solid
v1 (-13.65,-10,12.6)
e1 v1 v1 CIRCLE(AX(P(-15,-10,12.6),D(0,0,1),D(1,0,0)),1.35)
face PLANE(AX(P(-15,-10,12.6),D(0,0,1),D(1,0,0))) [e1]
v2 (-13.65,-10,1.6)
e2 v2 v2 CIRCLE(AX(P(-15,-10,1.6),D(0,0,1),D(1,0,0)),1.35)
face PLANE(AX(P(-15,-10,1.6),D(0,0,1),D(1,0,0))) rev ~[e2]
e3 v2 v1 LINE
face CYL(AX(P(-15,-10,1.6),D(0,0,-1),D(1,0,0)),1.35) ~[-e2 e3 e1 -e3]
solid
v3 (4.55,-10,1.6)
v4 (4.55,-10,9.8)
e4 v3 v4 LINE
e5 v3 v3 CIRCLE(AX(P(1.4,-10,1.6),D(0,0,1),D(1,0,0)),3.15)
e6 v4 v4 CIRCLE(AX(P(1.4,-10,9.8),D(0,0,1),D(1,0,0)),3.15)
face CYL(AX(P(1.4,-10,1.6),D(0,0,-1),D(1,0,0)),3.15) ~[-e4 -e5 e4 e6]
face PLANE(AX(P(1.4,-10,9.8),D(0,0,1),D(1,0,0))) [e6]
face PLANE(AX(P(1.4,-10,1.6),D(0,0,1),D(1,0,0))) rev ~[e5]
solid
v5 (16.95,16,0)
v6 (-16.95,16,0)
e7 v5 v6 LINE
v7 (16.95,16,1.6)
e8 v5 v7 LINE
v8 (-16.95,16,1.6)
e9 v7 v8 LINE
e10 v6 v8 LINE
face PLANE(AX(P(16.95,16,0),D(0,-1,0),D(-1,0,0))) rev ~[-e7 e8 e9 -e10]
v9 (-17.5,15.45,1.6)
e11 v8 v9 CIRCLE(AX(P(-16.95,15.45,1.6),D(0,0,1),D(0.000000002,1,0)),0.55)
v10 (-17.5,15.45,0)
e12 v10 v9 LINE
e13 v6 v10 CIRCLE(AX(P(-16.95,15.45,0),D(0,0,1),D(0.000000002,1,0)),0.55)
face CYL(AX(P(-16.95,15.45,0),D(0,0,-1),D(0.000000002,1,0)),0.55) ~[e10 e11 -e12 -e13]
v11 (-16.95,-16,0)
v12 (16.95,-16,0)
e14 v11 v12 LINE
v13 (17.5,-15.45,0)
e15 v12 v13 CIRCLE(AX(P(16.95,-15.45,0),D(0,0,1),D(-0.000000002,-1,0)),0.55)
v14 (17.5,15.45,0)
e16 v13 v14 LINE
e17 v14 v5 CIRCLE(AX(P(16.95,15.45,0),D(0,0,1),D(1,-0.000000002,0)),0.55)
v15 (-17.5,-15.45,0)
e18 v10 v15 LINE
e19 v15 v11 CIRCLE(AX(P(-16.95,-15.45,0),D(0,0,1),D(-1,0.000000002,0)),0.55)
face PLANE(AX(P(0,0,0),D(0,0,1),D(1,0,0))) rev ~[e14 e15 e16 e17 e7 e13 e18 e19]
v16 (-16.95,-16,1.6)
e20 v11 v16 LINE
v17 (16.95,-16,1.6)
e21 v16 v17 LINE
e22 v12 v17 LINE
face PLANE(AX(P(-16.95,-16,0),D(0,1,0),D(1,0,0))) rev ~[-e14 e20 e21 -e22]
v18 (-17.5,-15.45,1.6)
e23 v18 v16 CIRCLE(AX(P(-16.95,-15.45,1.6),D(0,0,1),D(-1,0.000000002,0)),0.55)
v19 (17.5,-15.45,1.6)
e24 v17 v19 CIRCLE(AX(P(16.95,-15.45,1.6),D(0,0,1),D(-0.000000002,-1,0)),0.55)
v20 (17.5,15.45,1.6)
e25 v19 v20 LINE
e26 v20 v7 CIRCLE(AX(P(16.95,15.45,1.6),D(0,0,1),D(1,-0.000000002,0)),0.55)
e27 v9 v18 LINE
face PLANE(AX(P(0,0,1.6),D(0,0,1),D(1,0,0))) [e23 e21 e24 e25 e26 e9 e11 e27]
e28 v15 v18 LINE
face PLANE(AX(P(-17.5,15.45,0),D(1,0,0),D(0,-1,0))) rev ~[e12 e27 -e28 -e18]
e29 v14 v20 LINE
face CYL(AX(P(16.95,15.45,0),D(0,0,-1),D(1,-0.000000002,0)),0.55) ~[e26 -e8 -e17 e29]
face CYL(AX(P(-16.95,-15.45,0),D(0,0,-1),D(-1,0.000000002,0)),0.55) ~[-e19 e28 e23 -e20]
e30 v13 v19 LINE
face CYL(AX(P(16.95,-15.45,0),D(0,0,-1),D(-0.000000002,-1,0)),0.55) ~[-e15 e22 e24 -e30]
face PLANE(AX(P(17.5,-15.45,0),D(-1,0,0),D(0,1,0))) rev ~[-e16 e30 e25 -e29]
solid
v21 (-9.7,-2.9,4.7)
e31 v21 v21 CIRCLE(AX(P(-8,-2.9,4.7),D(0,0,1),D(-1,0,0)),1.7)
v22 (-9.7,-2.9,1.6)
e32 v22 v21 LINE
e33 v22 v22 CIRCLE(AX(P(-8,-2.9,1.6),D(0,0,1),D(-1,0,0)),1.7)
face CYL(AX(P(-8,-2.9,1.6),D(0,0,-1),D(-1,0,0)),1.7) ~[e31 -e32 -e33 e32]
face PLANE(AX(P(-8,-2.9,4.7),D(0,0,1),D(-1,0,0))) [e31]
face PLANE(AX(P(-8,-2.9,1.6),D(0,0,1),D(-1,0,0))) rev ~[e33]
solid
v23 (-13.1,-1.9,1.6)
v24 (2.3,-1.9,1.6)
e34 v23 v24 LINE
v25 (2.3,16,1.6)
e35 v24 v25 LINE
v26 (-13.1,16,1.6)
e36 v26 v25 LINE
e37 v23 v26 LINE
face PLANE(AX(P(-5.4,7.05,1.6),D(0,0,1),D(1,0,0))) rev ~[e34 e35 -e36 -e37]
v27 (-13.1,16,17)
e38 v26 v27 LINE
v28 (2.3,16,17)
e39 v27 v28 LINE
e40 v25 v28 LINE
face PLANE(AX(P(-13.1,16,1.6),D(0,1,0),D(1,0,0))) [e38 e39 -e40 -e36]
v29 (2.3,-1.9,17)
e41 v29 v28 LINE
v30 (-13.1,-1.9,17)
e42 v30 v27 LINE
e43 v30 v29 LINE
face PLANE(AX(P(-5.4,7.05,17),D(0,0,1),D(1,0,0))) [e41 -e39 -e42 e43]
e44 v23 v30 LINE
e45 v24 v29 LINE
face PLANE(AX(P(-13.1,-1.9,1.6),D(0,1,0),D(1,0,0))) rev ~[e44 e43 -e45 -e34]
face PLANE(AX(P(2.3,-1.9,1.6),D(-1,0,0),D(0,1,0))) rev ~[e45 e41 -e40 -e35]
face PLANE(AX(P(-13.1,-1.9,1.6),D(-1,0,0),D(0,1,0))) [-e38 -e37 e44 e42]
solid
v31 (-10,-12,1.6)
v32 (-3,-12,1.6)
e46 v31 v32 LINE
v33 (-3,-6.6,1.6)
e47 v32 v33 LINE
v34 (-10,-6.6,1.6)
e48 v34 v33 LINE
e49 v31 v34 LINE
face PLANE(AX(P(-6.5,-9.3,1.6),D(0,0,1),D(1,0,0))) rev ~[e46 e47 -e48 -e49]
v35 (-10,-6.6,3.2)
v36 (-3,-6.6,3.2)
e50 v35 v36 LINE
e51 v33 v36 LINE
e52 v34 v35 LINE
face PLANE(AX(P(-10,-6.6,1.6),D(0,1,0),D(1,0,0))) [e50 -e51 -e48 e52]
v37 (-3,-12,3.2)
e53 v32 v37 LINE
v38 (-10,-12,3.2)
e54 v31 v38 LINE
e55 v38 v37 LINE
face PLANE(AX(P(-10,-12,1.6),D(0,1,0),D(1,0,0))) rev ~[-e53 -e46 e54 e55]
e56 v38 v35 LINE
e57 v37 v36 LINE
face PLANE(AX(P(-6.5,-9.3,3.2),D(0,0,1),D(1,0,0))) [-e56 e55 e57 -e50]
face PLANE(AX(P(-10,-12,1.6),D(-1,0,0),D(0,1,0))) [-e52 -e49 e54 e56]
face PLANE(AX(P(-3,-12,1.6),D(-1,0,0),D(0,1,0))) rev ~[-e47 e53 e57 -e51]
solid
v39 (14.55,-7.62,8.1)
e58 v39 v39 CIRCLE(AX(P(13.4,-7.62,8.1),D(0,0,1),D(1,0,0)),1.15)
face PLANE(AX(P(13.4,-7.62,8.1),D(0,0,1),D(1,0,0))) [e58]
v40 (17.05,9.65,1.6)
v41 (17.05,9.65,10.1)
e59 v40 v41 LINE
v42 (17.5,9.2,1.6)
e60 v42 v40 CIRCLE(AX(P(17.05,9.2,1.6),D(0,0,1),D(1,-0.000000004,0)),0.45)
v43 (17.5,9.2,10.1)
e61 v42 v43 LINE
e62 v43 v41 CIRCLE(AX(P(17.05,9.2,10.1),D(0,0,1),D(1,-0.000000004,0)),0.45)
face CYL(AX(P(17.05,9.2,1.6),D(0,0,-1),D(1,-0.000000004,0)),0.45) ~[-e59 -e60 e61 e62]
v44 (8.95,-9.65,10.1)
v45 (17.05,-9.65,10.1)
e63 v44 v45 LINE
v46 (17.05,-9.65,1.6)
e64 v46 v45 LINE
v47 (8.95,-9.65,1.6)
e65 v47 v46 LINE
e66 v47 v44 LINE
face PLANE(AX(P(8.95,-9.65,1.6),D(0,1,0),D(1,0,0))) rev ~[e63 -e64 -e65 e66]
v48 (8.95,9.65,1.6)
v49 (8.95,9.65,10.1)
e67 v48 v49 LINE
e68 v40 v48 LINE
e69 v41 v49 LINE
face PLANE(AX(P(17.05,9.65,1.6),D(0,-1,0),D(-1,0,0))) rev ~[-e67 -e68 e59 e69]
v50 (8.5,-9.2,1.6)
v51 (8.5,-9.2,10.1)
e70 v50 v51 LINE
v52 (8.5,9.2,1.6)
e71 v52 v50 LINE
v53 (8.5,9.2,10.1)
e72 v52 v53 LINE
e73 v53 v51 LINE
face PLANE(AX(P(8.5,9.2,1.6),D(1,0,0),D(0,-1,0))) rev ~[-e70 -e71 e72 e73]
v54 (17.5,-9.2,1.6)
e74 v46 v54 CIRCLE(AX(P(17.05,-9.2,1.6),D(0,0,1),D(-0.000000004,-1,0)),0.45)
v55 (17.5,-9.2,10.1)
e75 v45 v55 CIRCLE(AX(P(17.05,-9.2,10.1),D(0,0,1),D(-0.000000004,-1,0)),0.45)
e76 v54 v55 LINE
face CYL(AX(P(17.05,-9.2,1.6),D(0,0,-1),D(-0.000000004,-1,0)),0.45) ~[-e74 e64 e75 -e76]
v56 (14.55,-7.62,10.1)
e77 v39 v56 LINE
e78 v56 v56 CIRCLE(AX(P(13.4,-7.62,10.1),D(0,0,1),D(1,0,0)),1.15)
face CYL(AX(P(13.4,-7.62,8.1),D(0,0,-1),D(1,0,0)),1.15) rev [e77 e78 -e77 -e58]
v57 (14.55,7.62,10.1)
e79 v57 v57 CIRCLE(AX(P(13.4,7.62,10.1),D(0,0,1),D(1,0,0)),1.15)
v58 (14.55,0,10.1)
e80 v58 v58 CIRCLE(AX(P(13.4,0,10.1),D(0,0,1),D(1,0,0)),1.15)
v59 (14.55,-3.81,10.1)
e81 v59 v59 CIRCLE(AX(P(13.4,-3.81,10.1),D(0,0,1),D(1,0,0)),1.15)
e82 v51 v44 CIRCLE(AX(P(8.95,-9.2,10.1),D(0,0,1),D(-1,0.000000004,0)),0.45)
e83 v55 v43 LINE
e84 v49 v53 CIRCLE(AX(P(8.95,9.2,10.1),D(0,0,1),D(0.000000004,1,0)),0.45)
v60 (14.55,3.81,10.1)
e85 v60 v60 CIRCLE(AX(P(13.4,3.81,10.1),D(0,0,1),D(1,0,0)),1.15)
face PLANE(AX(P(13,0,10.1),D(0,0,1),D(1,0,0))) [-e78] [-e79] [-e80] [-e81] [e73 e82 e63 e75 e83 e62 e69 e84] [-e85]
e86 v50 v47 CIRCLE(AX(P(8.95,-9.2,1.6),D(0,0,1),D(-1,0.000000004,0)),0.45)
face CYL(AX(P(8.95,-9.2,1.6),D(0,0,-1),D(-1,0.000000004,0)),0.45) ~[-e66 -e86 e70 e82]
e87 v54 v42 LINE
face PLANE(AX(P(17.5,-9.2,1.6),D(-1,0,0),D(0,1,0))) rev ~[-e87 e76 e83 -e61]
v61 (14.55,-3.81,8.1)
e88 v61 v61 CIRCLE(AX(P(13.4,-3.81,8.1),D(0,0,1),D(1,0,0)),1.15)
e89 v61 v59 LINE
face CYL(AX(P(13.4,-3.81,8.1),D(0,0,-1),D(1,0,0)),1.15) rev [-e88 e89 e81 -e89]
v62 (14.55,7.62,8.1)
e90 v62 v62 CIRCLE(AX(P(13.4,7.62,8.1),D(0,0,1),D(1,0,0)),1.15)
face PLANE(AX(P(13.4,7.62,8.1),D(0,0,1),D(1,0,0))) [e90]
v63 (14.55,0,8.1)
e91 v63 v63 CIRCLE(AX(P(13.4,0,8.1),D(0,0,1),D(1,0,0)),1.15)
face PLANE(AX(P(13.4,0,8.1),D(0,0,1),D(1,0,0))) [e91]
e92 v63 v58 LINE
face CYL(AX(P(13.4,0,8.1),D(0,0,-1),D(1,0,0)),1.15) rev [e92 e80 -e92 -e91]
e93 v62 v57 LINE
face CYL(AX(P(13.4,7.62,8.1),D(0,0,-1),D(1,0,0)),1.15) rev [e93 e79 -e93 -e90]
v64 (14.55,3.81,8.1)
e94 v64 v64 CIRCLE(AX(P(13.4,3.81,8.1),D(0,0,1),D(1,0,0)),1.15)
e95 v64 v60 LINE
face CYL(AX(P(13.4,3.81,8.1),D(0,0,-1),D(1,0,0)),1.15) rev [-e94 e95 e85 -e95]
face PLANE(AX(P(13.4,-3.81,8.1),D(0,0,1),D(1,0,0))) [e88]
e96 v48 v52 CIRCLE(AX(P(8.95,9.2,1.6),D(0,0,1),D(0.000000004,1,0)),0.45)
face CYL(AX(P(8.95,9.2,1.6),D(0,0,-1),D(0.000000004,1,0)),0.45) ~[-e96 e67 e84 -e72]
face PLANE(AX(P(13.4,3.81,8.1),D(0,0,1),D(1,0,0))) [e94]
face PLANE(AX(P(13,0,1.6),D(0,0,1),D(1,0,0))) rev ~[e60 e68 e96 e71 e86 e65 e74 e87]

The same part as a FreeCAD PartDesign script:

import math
import FreeCAD as App
import Part
import Sketcher

V = App.Vector

doc = App.newDocument("Part")
body = doc.addObject("PartDesign::Body", "Body")

# Sketch on XY plane
sketch1 = body.newObject("Sketcher::SketchObject", "Sketch")
sketch1.AttachmentSupport = (doc.getObject("XY_Plane"), [""])
sketch1.MapMode = "FlatFace"
sketch1.addGeometry([
    Part.LineSegment(V(-16.9, -16, 0), V(16.9, -16, 0)),  # 0
    Part.ArcOfCircle(Part.Circle(V(17, -15.5, 0), V(0, 0, 1), 0.5), math.radians(-90), math.radians(0)),  # 1
    Part.LineSegment(V(17.5, -15.4, 0), V(17.5, 15.4, 0)),  # 2
    Part.ArcOfCircle(Part.Circle(V(17, 15.5, 0), V(0, 0, 1), 0.5), math.radians(0), math.radians(90)),  # 3
    Part.LineSegment(V(16.9, 16, 0), V(-16.9, 16, 0)),  # 4
    Part.ArcOfCircle(Part.Circle(V(-17, 15.5, 0), V(0, 0, 1), 0.5), math.radians(90), math.radians(180)),  # 5
    Part.LineSegment(V(-17.5, 15.4, 0), V(-17.5, -15.4, 0)),  # 6
    Part.ArcOfCircle(Part.Circle(V(-17, -15.5, 0), V(0, 0, 1), 0.5), math.radians(180), math.radians(270)),  # 7
], False)
sketch1.addConstraint([
    Sketcher.Constraint("Tangent", 0, 2, 1, 1),
    Sketcher.Constraint("Tangent", 1, 2, 2, 1),
    Sketcher.Constraint("Tangent", 2, 2, 3, 1),
    Sketcher.Constraint("Tangent", 3, 2, 4, 1),
    Sketcher.Constraint("Tangent", 4, 2, 5, 1),
    Sketcher.Constraint("Tangent", 5, 2, 6, 1),
    Sketcher.Constraint("Tangent", 6, 2, 7, 1),
    Sketcher.Constraint("Tangent", 7, 2, 0, 1),
    Sketcher.Constraint("Horizontal", 0),
    Sketcher.Constraint("Vertical", 2),
    Sketcher.Constraint("Horizontal", 4),
    Sketcher.Constraint("Vertical", 6),
    Sketcher.Constraint("Equal", 1, 3),
    Sketcher.Constraint("Equal", 3, 5),
    Sketcher.Constraint("Equal", 5, 7),
    Sketcher.Constraint("Symmetric", 1, 3, 5, 3, -1, 1),
    Sketcher.Constraint("Radius", 1, 0.55),
    Sketcher.Constraint("DistanceX", 0, 1, 0, 2, 33.9),
    Sketcher.Constraint("DistanceY", 2, 1, 2, 2, 30.9),
])
pad1 = body.newObject("PartDesign::Pad", "Pad")
pad1.Profile = sketch1
pad1.Length = 1.6
body2 = doc.addObject("PartDesign::Body", "Body001")

# Sketch on XY plane
sketch2 = body2.newObject("Sketcher::SketchObject", "Sketch001")
sketch2.AttachmentSupport = (doc.getObject("XY_Plane001"), [""])
sketch2.MapMode = "FlatFace"
sketch2.AttachmentOffset = App.Placement(V(0, 0, 1.6), App.Rotation())
sketch2.addGeometry([
    Part.LineSegment(V(-13, 16, 0), V(-13, -2, 0)),
    Part.LineSegment(V(-13, -2, 0), V(2, -2, 0)),
    Part.LineSegment(V(2, -2, 0), V(2, 16, 0)),
    Part.LineSegment(V(2, 16, 0), V(-13, 16, 0)),
], False)
sketch2.addConstraint([
    Sketcher.Constraint("Coincident", 0, 2, 1, 1),
    Sketcher.Constraint("Coincident", 1, 2, 2, 1),
    Sketcher.Constraint("Coincident", 2, 2, 3, 1),
    Sketcher.Constraint("Coincident", 3, 2, 0, 1),
    Sketcher.Constraint("Vertical", 0),
    Sketcher.Constraint("Horizontal", 1),
    Sketcher.Constraint("Vertical", 2),
    Sketcher.Constraint("Horizontal", 3),
    Sketcher.Constraint("DistanceX", 1, 1, 1, 2, 15.4),
    Sketcher.Constraint("DistanceY", 0, 2, 0, 1, 17.9),
    Sketcher.Constraint("DistanceY", -1, 1, 2, 2, 16.0),
    Sketcher.Constraint("DistanceX", 0, 2, -1, 1, 13.1),
])
pad2 = body2.newObject("PartDesign::Pad", "Pad001")
pad2.Profile = sketch2
pad2.Length = 15.4
body3 = doc.addObject("PartDesign::Body", "Body002")

# Sketch on XY plane
sketch3 = body3.newObject("Sketcher::SketchObject", "Sketch002")
sketch3.AttachmentSupport = (doc.getObject("XY_Plane002"), [""])
sketch3.MapMode = "FlatFace"
sketch3.AttachmentOffset = App.Placement(V(0, 0, 1.6), App.Rotation())
sketch3.addGeometry([
    Part.LineSegment(V(8.95, -9.65, 0), V(17.05, -9.65, 0)),  # 0
    Part.ArcOfCircle(Part.Circle(V(17.05, -9.2, 0), V(0, 0, 1), 0.45), math.radians(-90), math.radians(0)),  # 1
    Part.LineSegment(V(17.5, -9.2, 0), V(17.5, 9.2, 0)),  # 2
    Part.ArcOfCircle(Part.Circle(V(17.05, 9.2, 0), V(0, 0, 1), 0.45), math.radians(0), math.radians(90)),  # 3
    Part.LineSegment(V(17.05, 9.65, 0), V(8.95, 9.65, 0)),  # 4
    Part.ArcOfCircle(Part.Circle(V(8.95, 9.2, 0), V(0, 0, 1), 0.45), math.radians(90), math.radians(180)),  # 5
    Part.LineSegment(V(8.5, 9.2, 0), V(8.5, -9.2, 0)),  # 6
    Part.ArcOfCircle(Part.Circle(V(8.95, -9.2, 0), V(0, 0, 1), 0.45), math.radians(180), math.radians(270)),  # 7
], False)
sketch3.addConstraint([
    Sketcher.Constraint("Tangent", 0, 2, 1, 1),
    Sketcher.Constraint("Tangent", 1, 2, 2, 1),
    Sketcher.Constraint("Tangent", 2, 2, 3, 1),
    Sketcher.Constraint("Tangent", 3, 2, 4, 1),
    Sketcher.Constraint("Tangent", 4, 2, 5, 1),
    Sketcher.Constraint("Tangent", 5, 2, 6, 1),
    Sketcher.Constraint("Tangent", 6, 2, 7, 1),
    Sketcher.Constraint("Tangent", 7, 2, 0, 1),
    Sketcher.Constraint("Horizontal", 0),
    Sketcher.Constraint("Vertical", 2),
    Sketcher.Constraint("Horizontal", 4),
    Sketcher.Constraint("Vertical", 6),
    Sketcher.Constraint("Equal", 1, 3),
    Sketcher.Constraint("Equal", 3, 5),
    Sketcher.Constraint("Equal", 5, 7),
    Sketcher.Constraint("Radius", 1, 0.45),
    Sketcher.Constraint("DistanceX", 0, 1, 0, 2, 8.1),
    Sketcher.Constraint("DistanceY", 2, 1, 2, 2, 18.4),
    Sketcher.Constraint("DistanceY", 1, 3, -1, 1, 9.2),
    Sketcher.Constraint("DistanceX", -1, 1, 1, 2, 17.5),
])
pad3 = body3.newObject("PartDesign::Pad", "Pad002")
pad3.Profile = sketch3
pad3.Length = 8.5

# Sketch on XY plane
sketch4 = body3.newObject("Sketcher::SketchObject", "Sketch003")
sketch4.AttachmentSupport = (doc.getObject("XY_Plane002"), [""])
sketch4.MapMode = "FlatFace"
sketch4.AttachmentOffset = App.Placement(V(0, 0, 8.1), App.Rotation())
sketch4.addGeometry([
    Part.Circle(V(13.4, -7.6, 0), V(0, 0, 1), 1.1),  # 0
    Part.Circle(V(13.4, -3.8, 0), V(0, 0, 1), 1.1),  # 1
    Part.Circle(V(13.4, 0, 0), V(0, 0, 1), 1.1),  # 2
    Part.Circle(V(13.4, 3.8, 0), V(0, 0, 1), 1.1),  # 3
    Part.Circle(V(13.4, 7.6, 0), V(0, 0, 1), 1.1),  # 4
], False)
sketch4.addConstraint([
    Sketcher.Constraint("Equal", 0, 1),
    Sketcher.Constraint("Equal", 1, 2),
    Sketcher.Constraint("Equal", 2, 3),
    Sketcher.Constraint("Equal", 3, 4),
    Sketcher.Constraint("Symmetric", 1, 3, 3, 3, -1),
    Sketcher.Constraint("Symmetric", 0, 3, 4, 3, -1),
    Sketcher.Constraint("PointOnObject", 2, 3, -1),
    Sketcher.Constraint("Vertical", 0, 3, 1, 3),
    Sketcher.Constraint("Vertical", 1, 3, 2, 3),
    Sketcher.Constraint("Diameter", 0, 2.3),
    Sketcher.Constraint("DistanceX", -1, 1, 0, 3, 13.4),
    Sketcher.Constraint("DistanceY", 0, 3, -1, 1, 7.62),
    Sketcher.Constraint("DistanceY", 1, 3, -1, 1, 3.81),
])
pocket1 = body3.newObject("PartDesign::Pocket", "Pocket")
pocket1.Profile = sketch4
pocket1.Length = 2
pocket1.Reversed = True
body4 = doc.addObject("PartDesign::Body", "Body003")

# Sketch on XY plane
sketch5 = body4.newObject("Sketcher::SketchObject", "Sketch004")
sketch5.AttachmentSupport = (doc.getObject("XY_Plane003"), [""])
sketch5.MapMode = "FlatFace"
sketch5.AttachmentOffset = App.Placement(V(0, 0, 1.6), App.Rotation())
sketch5.addGeometry(Part.Circle(V(1.4, -10, 0), V(0, 0, 1), 3.1), False)
sketch5.addConstraint([
    Sketcher.Constraint("Diameter", 0, 6.3),
    Sketcher.Constraint("DistanceY", 0, 3, -1, 1, 10.0),
    Sketcher.Constraint("DistanceX", -1, 1, 0, 3, 1.4),
])
pad4 = body4.newObject("PartDesign::Pad", "Pad003")
pad4.Profile = sketch5
pad4.Length = 8.2
body5 = doc.addObject("PartDesign::Body", "Body004")

# Sketch on XY plane
sketch6 = body5.newObject("Sketcher::SketchObject", "Sketch005")
sketch6.AttachmentSupport = (doc.getObject("XY_Plane004"), [""])
sketch6.MapMode = "FlatFace"
sketch6.AttachmentOffset = App.Placement(V(0, 0, 1.6), App.Rotation())
sketch6.addGeometry(Part.Circle(V(-15, -10, 0), V(0, 0, 1), 1.4), False)
sketch6.addConstraint([
    Sketcher.Constraint("Diameter", 0, 2.7),
    Sketcher.Constraint("DistanceX", 0, 3, -1, 1, 15.0),
    Sketcher.Constraint("DistanceY", 0, 3, -1, 1, 10.0),
])
pad5 = body5.newObject("PartDesign::Pad", "Pad004")
pad5.Profile = sketch6
pad5.Length = 11
body6 = doc.addObject("PartDesign::Body", "Body005")

# Sketch on XY plane
sketch7 = body6.newObject("Sketcher::SketchObject", "Sketch006")
sketch7.AttachmentSupport = (doc.getObject("XY_Plane005"), [""])
sketch7.MapMode = "FlatFace"
sketch7.AttachmentOffset = App.Placement(V(0, 0, 1.6), App.Rotation())
sketch7.addGeometry([
    Part.LineSegment(V(-10, -7, 0), V(-10, -12, 0)),
    Part.LineSegment(V(-10, -12, 0), V(-3, -12, 0)),
    Part.LineSegment(V(-3, -12, 0), V(-3, -7, 0)),
    Part.LineSegment(V(-3, -7, 0), V(-10, -7, 0)),
], False)
sketch7.addConstraint([
    Sketcher.Constraint("Coincident", 0, 2, 1, 1),
    Sketcher.Constraint("Coincident", 1, 2, 2, 1),
    Sketcher.Constraint("Coincident", 2, 2, 3, 1),
    Sketcher.Constraint("Coincident", 3, 2, 0, 1),
    Sketcher.Constraint("Vertical", 0),
    Sketcher.Constraint("Horizontal", 1),
    Sketcher.Constraint("Vertical", 2),
    Sketcher.Constraint("Horizontal", 3),
    Sketcher.Constraint("DistanceX", 1, 1, 1, 2, 7.0),
    Sketcher.Constraint("DistanceY", 0, 2, 0, 1, 5.4),
    Sketcher.Constraint("DistanceX", 0, 2, -1, 1, 10.0),
    Sketcher.Constraint("DistanceY", 0, 2, -1, 1, 12.0),
])
pad6 = body6.newObject("PartDesign::Pad", "Pad005")
pad6.Profile = sketch7
pad6.Length = 1.6
body7 = doc.addObject("PartDesign::Body", "Body006")

# Sketch on XY plane
sketch8 = body7.newObject("Sketcher::SketchObject", "Sketch007")
sketch8.AttachmentSupport = (doc.getObject("XY_Plane006"), [""])
sketch8.MapMode = "FlatFace"
sketch8.AttachmentOffset = App.Placement(V(0, 0, 1.6), App.Rotation())
sketch8.addGeometry(Part.Circle(V(-8, -2.9, 0), V(0, 0, 1), 1.7), False)
sketch8.addConstraint([
    Sketcher.Constraint("Diameter", 0, 3.4),
    Sketcher.Constraint("DistanceX", 0, 3, -1, 1, 8.0),
    Sketcher.Constraint("DistanceY", 0, 3, -1, 1, 2.9),
])
pad7 = body7.newObject("PartDesign::Pad", "Pad006")
pad7.Profile = sketch8
pad7.Length = 3.1

doc.recompute()
